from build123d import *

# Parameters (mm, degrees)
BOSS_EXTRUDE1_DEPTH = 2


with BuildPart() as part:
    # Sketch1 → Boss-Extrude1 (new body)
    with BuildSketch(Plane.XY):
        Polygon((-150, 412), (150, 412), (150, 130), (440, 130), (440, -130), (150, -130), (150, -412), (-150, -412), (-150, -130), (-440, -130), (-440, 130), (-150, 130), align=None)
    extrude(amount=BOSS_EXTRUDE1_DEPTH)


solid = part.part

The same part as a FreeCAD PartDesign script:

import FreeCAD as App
import Part
import Sketcher


def add_polygon(sketch, points):
    """Adds a closed chain of lines whose ends are joined by coincident constraints."""
    first, n = sketch.GeometryCount, len(points)
    for a, b in zip(points, points[1:] + points[:1]):
        sketch.addGeometry(Part.LineSegment(App.Vector(*a, 0), App.Vector(*b, 0)), False)
    for i in range(n):
        sketch.addConstraint(Sketcher.Constraint("Coincident", first + i, 2, first + (i + 1) % n, 1))

doc = App.newDocument("Part")
params = doc.addObject("Spreadsheet::Sheet", "Params")
for row, (alias, value) in enumerate([
    ("sketch1_width", "300 mm"),
    ("sketch1_width2", "290 mm"),
    ("sketch1_height", "282 mm"),
    ("sketch1_height2", "260 mm"),
    ("pad1_length", "2 mm"),
], start=1):
    params.set(f"A{row}", alias)
    params.set(f"B{row}", "=" + value)
    params.setAlias(f"B{row}", alias)

body = doc.addObject("PartDesign::Body", "Body")

sketch1 = doc.addObject("Sketcher::SketchObject", "Sketch")
body.addObject(sketch1)
sketch1.AttachmentSupport = (doc.XY_Plane, [""])
sketch1.MapMode = "FlatFace"
add_polygon(sketch1, [(150, 412), (-150, 412), (-150, 130), (-440, 130), (-440, -130), (-150, -130), (-150, -412), (150, -412), (150, -130), (440, -130), (440, 130), (150, 130)])
sketch1.addConstraint([
    Sketcher.Constraint("Horizontal", 0),
    Sketcher.Constraint("Vertical", 1),
    Sketcher.Constraint("Horizontal", 2),
    Sketcher.Constraint("Vertical", 3),
    Sketcher.Constraint("Horizontal", 4),
    Sketcher.Constraint("Vertical", 5),
    Sketcher.Constraint("Horizontal", 6),
    Sketcher.Constraint("Vertical", 7),
    Sketcher.Constraint("Horizontal", 8),
    Sketcher.Constraint("Vertical", 9),
    Sketcher.Constraint("Horizontal", 10),
    Sketcher.Constraint("Vertical", 11),
    Sketcher.Constraint("Symmetric", 0, 2, 6, 2, -1, 1),
    Sketcher.Constraint("Symmetric", 2, 2, 8, 2, -1, 1),
    Sketcher.Constraint("Symmetric", 4, 2, 10, 2, -1, 1),
    Sketcher.Constraint("Symmetric", 4, 2, 7, 2, -2),
    Sketcher.Constraint("DistanceX", 0, 2, 0, 1, 300.0),
    Sketcher.Constraint("DistanceX", 2, 2, 2, 1, 290.0),
    Sketcher.Constraint("DistanceY", 1, 2, 1, 1, 282.0),
    Sketcher.Constraint("DistanceY", 3, 2, 3, 1, 260.0),
])
sketch1.setExpression("Constraints[28]", "Params.sketch1_width")
sketch1.setExpression("Constraints[29]", "Params.sketch1_width2")
sketch1.setExpression("Constraints[30]", "Params.sketch1_height")
sketch1.setExpression("Constraints[31]", "Params.sketch1_height2")
pad1 = doc.addObject("PartDesign::Pad", "Pad")
body.addObject(pad1)
pad1.Profile = sketch1
pad1.setExpression("Length", "Params.pad1_length")

doc.recompute()
